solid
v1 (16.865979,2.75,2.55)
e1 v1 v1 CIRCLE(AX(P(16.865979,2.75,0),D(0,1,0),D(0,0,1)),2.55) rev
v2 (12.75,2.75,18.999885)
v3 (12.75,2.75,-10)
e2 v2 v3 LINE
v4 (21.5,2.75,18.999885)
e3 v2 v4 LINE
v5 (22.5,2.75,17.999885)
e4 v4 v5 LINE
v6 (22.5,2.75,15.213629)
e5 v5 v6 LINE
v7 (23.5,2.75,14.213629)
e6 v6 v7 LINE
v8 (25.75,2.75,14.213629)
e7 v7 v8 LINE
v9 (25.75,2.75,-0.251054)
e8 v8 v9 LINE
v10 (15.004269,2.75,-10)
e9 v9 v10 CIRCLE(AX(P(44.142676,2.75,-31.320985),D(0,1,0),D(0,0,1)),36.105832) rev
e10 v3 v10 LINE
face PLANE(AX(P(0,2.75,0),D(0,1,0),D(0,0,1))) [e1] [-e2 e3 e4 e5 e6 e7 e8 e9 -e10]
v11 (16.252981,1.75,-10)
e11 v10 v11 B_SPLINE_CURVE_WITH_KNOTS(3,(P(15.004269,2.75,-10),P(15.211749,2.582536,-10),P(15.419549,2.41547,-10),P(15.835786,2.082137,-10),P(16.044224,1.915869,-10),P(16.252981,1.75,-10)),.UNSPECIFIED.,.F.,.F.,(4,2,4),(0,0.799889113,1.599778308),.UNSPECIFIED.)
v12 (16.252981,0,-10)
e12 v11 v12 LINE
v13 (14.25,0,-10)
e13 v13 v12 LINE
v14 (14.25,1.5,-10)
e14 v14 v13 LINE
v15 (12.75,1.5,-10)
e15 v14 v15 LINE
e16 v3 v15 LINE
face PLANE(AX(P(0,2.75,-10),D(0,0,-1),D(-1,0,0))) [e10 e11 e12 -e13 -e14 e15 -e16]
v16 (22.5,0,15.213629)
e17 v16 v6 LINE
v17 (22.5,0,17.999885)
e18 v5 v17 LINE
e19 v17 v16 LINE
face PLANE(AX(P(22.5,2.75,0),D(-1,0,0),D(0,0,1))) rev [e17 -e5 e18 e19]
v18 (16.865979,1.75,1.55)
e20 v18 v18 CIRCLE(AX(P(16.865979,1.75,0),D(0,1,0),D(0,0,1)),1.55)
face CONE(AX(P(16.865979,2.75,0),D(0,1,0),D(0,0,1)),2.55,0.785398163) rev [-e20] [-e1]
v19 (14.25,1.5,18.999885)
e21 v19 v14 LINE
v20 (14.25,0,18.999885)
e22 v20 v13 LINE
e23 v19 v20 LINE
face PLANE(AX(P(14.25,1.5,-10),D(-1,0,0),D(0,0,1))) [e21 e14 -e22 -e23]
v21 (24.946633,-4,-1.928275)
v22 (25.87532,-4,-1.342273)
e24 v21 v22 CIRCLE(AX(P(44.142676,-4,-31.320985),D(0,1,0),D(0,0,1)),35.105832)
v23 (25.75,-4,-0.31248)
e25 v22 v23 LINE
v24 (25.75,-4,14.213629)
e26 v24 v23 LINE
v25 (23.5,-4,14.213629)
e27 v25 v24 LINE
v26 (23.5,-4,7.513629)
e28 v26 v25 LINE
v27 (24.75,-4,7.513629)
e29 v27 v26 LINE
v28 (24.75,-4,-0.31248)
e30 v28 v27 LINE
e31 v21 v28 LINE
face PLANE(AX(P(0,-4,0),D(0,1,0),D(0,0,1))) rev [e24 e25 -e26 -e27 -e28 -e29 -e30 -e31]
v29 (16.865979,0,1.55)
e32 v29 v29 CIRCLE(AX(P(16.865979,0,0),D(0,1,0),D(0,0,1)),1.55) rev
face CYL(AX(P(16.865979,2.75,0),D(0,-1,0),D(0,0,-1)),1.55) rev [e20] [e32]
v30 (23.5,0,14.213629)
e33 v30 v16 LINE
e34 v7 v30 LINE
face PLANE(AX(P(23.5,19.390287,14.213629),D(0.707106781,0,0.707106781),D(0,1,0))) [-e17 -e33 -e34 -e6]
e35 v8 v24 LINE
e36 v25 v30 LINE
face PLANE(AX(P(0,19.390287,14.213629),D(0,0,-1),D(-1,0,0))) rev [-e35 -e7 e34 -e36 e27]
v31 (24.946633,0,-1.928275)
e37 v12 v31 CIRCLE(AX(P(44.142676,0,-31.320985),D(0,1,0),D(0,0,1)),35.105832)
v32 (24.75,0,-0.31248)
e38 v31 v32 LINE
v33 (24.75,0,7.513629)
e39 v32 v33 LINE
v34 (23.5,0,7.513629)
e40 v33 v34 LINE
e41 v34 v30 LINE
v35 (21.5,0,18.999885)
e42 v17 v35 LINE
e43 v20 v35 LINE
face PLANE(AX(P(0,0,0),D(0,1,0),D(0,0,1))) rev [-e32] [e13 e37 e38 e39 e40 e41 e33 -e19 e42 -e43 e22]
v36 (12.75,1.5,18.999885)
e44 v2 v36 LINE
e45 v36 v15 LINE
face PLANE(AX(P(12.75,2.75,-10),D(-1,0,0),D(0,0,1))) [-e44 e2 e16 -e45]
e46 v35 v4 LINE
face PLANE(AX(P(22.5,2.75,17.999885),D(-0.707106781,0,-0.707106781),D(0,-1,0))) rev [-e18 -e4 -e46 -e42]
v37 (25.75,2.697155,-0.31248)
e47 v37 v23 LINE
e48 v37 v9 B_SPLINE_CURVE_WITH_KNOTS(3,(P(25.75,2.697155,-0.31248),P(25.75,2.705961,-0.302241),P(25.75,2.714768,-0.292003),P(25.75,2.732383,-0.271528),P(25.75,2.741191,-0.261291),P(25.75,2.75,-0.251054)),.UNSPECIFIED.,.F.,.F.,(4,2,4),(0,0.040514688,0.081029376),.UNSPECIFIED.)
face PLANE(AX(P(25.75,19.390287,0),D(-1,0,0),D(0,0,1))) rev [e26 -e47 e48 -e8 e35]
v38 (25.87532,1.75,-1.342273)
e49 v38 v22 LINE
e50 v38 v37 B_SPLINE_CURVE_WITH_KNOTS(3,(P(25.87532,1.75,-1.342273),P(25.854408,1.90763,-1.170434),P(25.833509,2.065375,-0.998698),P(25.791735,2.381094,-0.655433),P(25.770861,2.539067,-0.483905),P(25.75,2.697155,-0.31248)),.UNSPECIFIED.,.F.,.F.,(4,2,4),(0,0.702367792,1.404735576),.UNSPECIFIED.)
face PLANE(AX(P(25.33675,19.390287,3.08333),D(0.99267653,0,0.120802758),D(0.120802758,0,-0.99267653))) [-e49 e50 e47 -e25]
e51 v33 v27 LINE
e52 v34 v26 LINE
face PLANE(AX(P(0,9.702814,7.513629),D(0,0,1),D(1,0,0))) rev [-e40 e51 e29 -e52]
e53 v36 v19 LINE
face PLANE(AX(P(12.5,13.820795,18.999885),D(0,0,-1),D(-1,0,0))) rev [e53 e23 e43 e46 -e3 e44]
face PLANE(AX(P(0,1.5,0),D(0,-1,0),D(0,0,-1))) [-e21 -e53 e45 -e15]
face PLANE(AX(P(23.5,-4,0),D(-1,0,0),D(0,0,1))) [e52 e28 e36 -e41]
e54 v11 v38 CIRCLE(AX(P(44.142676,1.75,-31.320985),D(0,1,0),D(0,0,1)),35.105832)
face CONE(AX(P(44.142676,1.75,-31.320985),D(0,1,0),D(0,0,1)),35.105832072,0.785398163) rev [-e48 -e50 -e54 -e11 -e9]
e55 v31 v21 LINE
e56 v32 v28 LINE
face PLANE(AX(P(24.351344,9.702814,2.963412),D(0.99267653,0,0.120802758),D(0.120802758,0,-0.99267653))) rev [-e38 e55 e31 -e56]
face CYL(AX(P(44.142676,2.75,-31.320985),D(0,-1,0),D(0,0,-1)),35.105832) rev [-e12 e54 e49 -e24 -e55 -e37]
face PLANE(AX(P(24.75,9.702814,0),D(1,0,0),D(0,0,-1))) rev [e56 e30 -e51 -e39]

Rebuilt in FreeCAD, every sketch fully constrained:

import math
import FreeCAD as App
import Part
import Sketcher
from FreeCAD import Vector


def edges_at(feature, points):
    """Names of the edges that pass closest to the given points."""
    edges = feature.Shape.Edges
    near = lambda p: min(range(len(edges)), key=lambda i: edges[i].distToShape(Part.Vertex(*p))[0])
    return sorted({f"Edge{near(p) + 1}" for p in points})

doc = App.newDocument("Part")
body = doc.addObject("PartDesign::Body", "Body")

# Sketch on XZ plane
sketch1 = doc.addObject("Sketcher::SketchObject", "Sketch")
body.addObject(sketch1)
sketch1.AttachmentSupport = (doc.XZ_Plane, [""])
sketch1.MapMode = "FlatFace"
sketch1.addGeometry(Part.LineSegment(Vector(22.5, 14.249885, 0), Vector(22.5, 7.263629, 0)), False)
sketch1.addGeometry(Part.LineSegment(Vector(22.5, 7.263629, 0), Vector(24.5, 7.263629, 0)), False)
sketch1.addGeometry(Part.LineSegment(Vector(24.5, 7.263629, 0), Vector(24.5, -0.31248, 0)), False)
sketch1.addGeometry(Part.LineSegment(Vector(24.5, -0.31248, 0), Vector(24.715186, -2.080737, 0)), False)
sketch1.addGeometry(Part.ArcOfCircle(Part.Circle(Vector(44.142676, -31.320985, 0), Vector(0, 0, 1), 35.105832), math.radians(123.600428), math.radians(142.602978)), False)
sketch1.addGeometry(Part.LineSegment(Vector(16.252981, -10, 0), Vector(12.5, -10, 0)), False)
sketch1.addGeometry(Part.LineSegment(Vector(12.5, -10, 0), Vector(12.5, 14.249885, 0)), False)
sketch1.addGeometry(Part.LineSegment(Vector(12.5, 14.249885, 0), Vector(22.5, 14.249885, 0)), False)
sketch1.addGeometry(Part.Circle(Vector(16.865979, 0, 0), Vector(0, 0, 1), 1.55), False)
sketch1.addConstraint(Sketcher.Constraint("Coincident", 0, 2, 1, 1))
sketch1.addConstraint(Sketcher.Constraint("Coincident", 1, 2, 2, 1))
sketch1.addConstraint(Sketcher.Constraint("Coincident", 2, 2, 3, 1))
sketch1.addConstraint(Sketcher.Constraint("Coincident", 3, 2, 4, 1))
sketch1.addConstraint(Sketcher.Constraint("Coincident", 4, 2, 5, 1))
sketch1.addConstraint(Sketcher.Constraint("Coincident", 5, 2, 6, 1))
sketch1.addConstraint(Sketcher.Constraint("Coincident", 6, 2, 7, 1))
sketch1.addConstraint(Sketcher.Constraint("Coincident", 7, 2, 0, 1))
sketch1.addConstraint(Sketcher.Constraint("Vertical", 0))
sketch1.addConstraint(Sketcher.Constraint("Horizontal", 1))
sketch1.addConstraint(Sketcher.Constraint("Vertical", 2))
sketch1.addConstraint(Sketcher.Constraint("Horizontal", 5))
sketch1.addConstraint(Sketcher.Constraint("Vertical", 6))
sketch1.addConstraint(Sketcher.Constraint("Horizontal", 7))
sketch1.addConstraint(Sketcher.Constraint("PointOnObject", 8, 3, -1))
sketch1.addConstraint(Sketcher.Constraint("Diameter", 8, 3.1))
sketch1.addConstraint(Sketcher.Constraint("DistanceX", 1, 1, 1, 2, 2.0))
sketch1.addConstraint(Sketcher.Constraint("DistanceX", 7, 1, 7, 2, 10.0))
sketch1.addConstraint(Sketcher.Constraint("DistanceY", 4, 2, -1, 1, 10.0))
sketch1.addConstraint(Sketcher.Constraint("DistanceX", -1, 1, 0, 2, 22.5))
sketch1.addConstraint(Sketcher.Constraint("Radius", 4, 35.105832))
sketch1.addConstraint(Sketcher.Constraint("DistanceX", 4, 2, 8, 3, 0.612998))
sketch1.addConstraint(Sketcher.Constraint("Distance", 3, 1.781302))
sketch1.addConstraint(Sketcher.Constraint("DistanceX", 5, 2, 5, 1, 3.752981))
sketch1.addConstraint(Sketcher.Constraint("DistanceY", 2, 2, 2, 1, 7.576109))
sketch1.addConstraint(Sketcher.Constraint("DistanceY", 0, 2, 0, 1, 6.986256))
sketch1.addConstraint(Sketcher.Constraint("DistanceY", 6, 1, 6, 2, 24.249885))
sketch1.addConstraint(Sketcher.Constraint("DistanceX", 3, 2, 4, 3, 19.427489))
pad1 = doc.addObject("PartDesign::Pad", "Pad")
body.addObject(pad1)
pad1.Profile = sketch1
pad1.Length = 2.75
pad1.Reversed = True

# Sketch on XZ plane
sketch2 = doc.addObject("Sketcher::SketchObject", "Sketch001")
body.addObject(sketch2)
sketch2.AttachmentSupport = (doc.XZ_Plane, [""])
sketch2.MapMode = "FlatFace"
sketch2.addGeometry(Part.LineSegment(Vector(12.5, 14.249885, 0), Vector(12.5, 18.999885, 0)), False)
sketch2.addGeometry(Part.LineSegment(Vector(12.5, 18.999885, 0), Vector(22.5, 18.999885, 0)), False)
sketch2.addGeometry(Part.LineSegment(Vector(22.5, 18.999885, 0), Vector(22.5, 14.249885, 0)), False)
sketch2.addGeometry(Part.LineSegment(Vector(22.5, 14.249885, 0), Vector(12.5, 14.249885, 0)), False)
sketch2.addConstraint(Sketcher.Constraint("Coincident", 0, 2, 1, 1))
sketch2.addConstraint(Sketcher.Constraint("Coincident", 1, 2, 2, 1))
sketch2.addConstraint(Sketcher.Constraint("Coincident", 2, 2, 3, 1))
sketch2.addConstraint(Sketcher.Constraint("Coincident", 3, 2, 0, 1))
sketch2.addConstraint(Sketcher.Constraint("Vertical", 0))
sketch2.addConstraint(Sketcher.Constraint("Horizontal", 1))
sketch2.addConstraint(Sketcher.Constraint("Vertical", 2))
sketch2.addConstraint(Sketcher.Constraint("Horizontal", 3))
sketch2.addConstraint(Sketcher.Constraint("DistanceX", 1, 1, 1, 2, 10.0))
sketch2.addConstraint(Sketcher.Constraint("DistanceY", 0, 1, 0, 2, 4.75))
sketch2.addConstraint(Sketcher.Constraint("DistanceX", -1, 1, 0, 2, 12.5))
sketch2.addConstraint(Sketcher.Constraint("DistanceY", -1, 1, 0, 2, 18.999885))
pad2 = doc.addObject("PartDesign::Pad", "Pad001")
body.addObject(pad2)
pad2.Profile = sketch2
pad2.Length = 2.75
pad2.Reversed = True

# Sketch on XZ plane
sketch3 = doc.addObject("Sketcher::SketchObject", "Sketch002")
body.addObject(sketch3)
sketch3.AttachmentSupport = (doc.XZ_Plane, [""])
sketch3.MapMode = "FlatFace"
sketch3.addGeometry(Part.ArcOfCircle(Part.Circle(Vector(44.142676, -31.320986, 0), Vector(0, 0, 1), 35.105833), math.radians(121.355801), math.radians(123.600428)), False)
sketch3.addGeometry(Part.LineSegment(Vector(24.715186, -2.080737, 0), Vector(24.5, -0.31248, 0)), False)
sketch3.addGeometry(Part.LineSegment(Vector(24.5, -0.31248, 0), Vector(24.5, 7.263629, 0)), False)
sketch3.addGeometry(Part.LineSegment(Vector(24.5, 7.263629, 0), Vector(22.5, 7.263629, 0)), False)
sketch3.addGeometry(Part.LineSegment(Vector(22.5, 7.263629, 0), Vector(22.5, 14.213629, 0)), False)
sketch3.addGeometry(Part.LineSegment(Vector(22.5, 14.213629, 0), Vector(25.75, 14.213629, 0)), False)
sketch3.addGeometry(Part.LineSegment(Vector(25.75, 14.213629, 0), Vector(25.75, -0.31248, 0)), False)
sketch3.addGeometry(Part.LineSegment(Vector(25.75, -0.31248, 0), Vector(25.87532, -1.342273, 0)), False)
sketch3.addConstraint(Sketcher.Constraint("Coincident", 0, 2, 1, 1))
sketch3.addConstraint(Sketcher.Constraint("Coincident", 1, 2, 2, 1))
sketch3.addConstraint(Sketcher.Constraint("Coincident", 2, 2, 3, 1))
sketch3.addConstraint(Sketcher.Constraint("Coincident", 3, 2, 4, 1))
sketch3.addConstraint(Sketcher.Constraint("Coincident", 4, 2, 5, 1))
sketch3.addConstraint(Sketcher.Constraint("Coincident", 5, 2, 6, 1))
sketch3.addConstraint(Sketcher.Constraint("Coincident", 6, 2, 7, 1))
sketch3.addConstraint(Sketcher.Constraint("Coincident", 7, 2, 0, 1))
sketch3.addConstraint(Sketcher.Constraint("Vertical", 2))
sketch3.addConstraint(Sketcher.Constraint("Horizontal", 3))
sketch3.addConstraint(Sketcher.Constraint("Vertical", 4))
sketch3.addConstraint(Sketcher.Constraint("Horizontal", 5))
sketch3.addConstraint(Sketcher.Constraint("Vertical", 6))
sketch3.addConstraint(Sketcher.Constraint("Parallel", 1, 7))
sketch3.addConstraint(Sketcher.Constraint("Horizontal", 1, 2, 6, 2))
sketch3.addConstraint(Sketcher.Constraint("DistanceX", 3, 2, 3, 1, 2.0))
sketch3.addConstraint(Sketcher.Constraint("DistanceX", 5, 1, 5, 2, 3.25))
sketch3.addConstraint(Sketcher.Constraint("DistanceY", 4, 1, 4, 2, 6.95))
sketch3.addConstraint(Sketcher.Constraint("DistanceX", -1, 1, 1, 2, 24.5))
sketch3.addConstraint(Sketcher.Constraint("Radius", 0, 35.105833))
sketch3.addConstraint(Sketcher.Constraint("Distance", 1, 1.781302))
sketch3.addConstraint(Sketcher.Constraint("DistanceY", 2, 1, 2, 2, 7.576109))
sketch3.addConstraint(Sketcher.Constraint("Distance", 7, 1.03739))
sketch3.addConstraint(Sketcher.Constraint("DistanceY", 1, 2, -1, 1, 0.31248))
sketch3.addConstraint(Sketcher.Constraint("DistanceX", -1, 1, 7, 2, 25.87532))
pad3 = doc.addObject("PartDesign::Pad", "Pad002")
body.addObject(pad3)
pad3.Profile = sketch3
pad3.Length = 2.75
pad3.Reversed = True

# Sketch on XZ plane
sketch4 = doc.addObject("Sketcher::SketchObject", "Sketch003")
body.addObject(sketch4)
sketch4.AttachmentSupport = (doc.XZ_Plane, [""])
sketch4.MapMode = "FlatFace"
sketch4.AttachmentOffset = App.Placement(Vector(0, 0, 4), App.Rotation())
sketch4.addGeometry(Part.LineSegment(Vector(23.5, 7.263629, 0), Vector(23.5, 14.213629, 0)), False)
sketch4.addGeometry(Part.LineSegment(Vector(23.5, 14.213629, 0), Vector(25.75, 14.213629, 0)), False)
sketch4.addGeometry(Part.LineSegment(Vector(25.75, 14.213629, 0), Vector(25.75, -0.31248, 0)), False)
sketch4.addGeometry(Part.LineSegment(Vector(25.75, -0.31248, 0), Vector(25.87532, -1.342273, 0)), False)
sketch4.addGeometry(Part.ArcOfCircle(Part.Circle(Vector(44.142676, -31.320986, 0), Vector(0, 0, 1), 35.105833), math.radians(121.355801), math.radians(123.600428)), False)
sketch4.addGeometry(Part.LineSegment(Vector(24.715186, -2.080737, 0), Vector(24.5, -0.31248, 0)), False)
sketch4.addGeometry(Part.LineSegment(Vector(24.5, -0.31248, 0), Vector(24.5, 7.263629, 0)), False)
sketch4.addGeometry(Part.LineSegment(Vector(24.5, 7.263629, 0), Vector(23.5, 7.263629, 0)), False)
sketch4.addConstraint(Sketcher.Constraint("Coincident", 0, 2, 1, 1))
sketch4.addConstraint(Sketcher.Constraint("Coincident", 1, 2, 2, 1))
sketch4.addConstraint(Sketcher.Constraint("Coincident", 2, 2, 3, 1))
sketch4.addConstraint(Sketcher.Constraint("Coincident", 3, 2, 4, 1))
sketch4.addConstraint(Sketcher.Constraint("Coincident", 4, 2, 5, 1))
sketch4.addConstraint(Sketcher.Constraint("Coincident", 5, 2, 6, 1))
sketch4.addConstraint(Sketcher.Constraint("Coincident", 6, 2, 7, 1))
sketch4.addConstraint(Sketcher.Constraint("Coincident", 7, 2, 0, 1))
sketch4.addConstraint(Sketcher.Constraint("Vertical", 0))
sketch4.addConstraint(Sketcher.Constraint("Horizontal", 1))
sketch4.addConstraint(Sketcher.Constraint("Vertical", 2))
sketch4.addConstraint(Sketcher.Constraint("Vertical", 6))
sketch4.addConstraint(Sketcher.Constraint("Horizontal", 7))
sketch4.addConstraint(Sketcher.Constraint("Parallel", 3, 5))
sketch4.addConstraint(Sketcher.Constraint("Horizontal", 2, 2, 5, 2))
sketch4.addConstraint(Sketcher.Constraint("DistanceX", 7, 2, 7, 1, 1.0))
sketch4.addConstraint(Sketcher.Constraint("DistanceX", 1, 1, 1, 2, 2.25))
sketch4.addConstraint(Sketcher.Constraint("DistanceY", 0, 1, 0, 2, 6.95))
sketch4.addConstraint(Sketcher.Constraint("DistanceX", -1, 1, 0, 2, 23.5))
sketch4.addConstraint(Sketcher.Constraint("Radius", 4, 35.105833))
sketch4.addConstraint(Sketcher.Constraint("Distance", 5, 1.781302))
sketch4.addConstraint(Sketcher.Constraint("DistanceY", 2, 2, 2, 1, 14.526109))
sketch4.addConstraint(Sketcher.Constraint("Distance", 3, 1.03739))
sketch4.addConstraint(Sketcher.Constraint("DistanceY", -1, 1, 0, 2, 14.213629))
sketch4.addConstraint(Sketcher.Constraint("DistanceX", -1, 1, 3, 2, 25.87532))
pad4 = doc.addObject("PartDesign::Pad", "Pad003")
body.addObject(pad4)
pad4.Profile = sketch4
pad4.Length = 4
pad4.Reversed = True

# Sketch on XZ plane
sketch5 = doc.addObject("Sketcher::SketchObject", "Sketch004")
body.addObject(sketch5)
sketch5.AttachmentSupport = (doc.XZ_Plane, [""])
sketch5.MapMode = "FlatFace"
sketch5.addGeometry(Part.LineSegment(Vector(12.5, -10, 0), Vector(12.5, 18.999885, 0)), False)
sketch5.addGeometry(Part.LineSegment(Vector(12.5, 18.999885, 0), Vector(14.25, 18.999885, 0)), False)
sketch5.addGeometry(Part.LineSegment(Vector(14.25, 18.999885, 0), Vector(14.25, -10, 0)), False)
sketch5.addGeometry(Part.LineSegment(Vector(14.25, -10, 0), Vector(12.5, -10, 0)), False)
sketch5.addConstraint(Sketcher.Constraint("Coincident", 0, 2, 1, 1))
sketch5.addConstraint(Sketcher.Constraint("Coincident", 1, 2, 2, 1))
sketch5.addConstraint(Sketcher.Constraint("Coincident", 2, 2, 3, 1))
sketch5.addConstraint(Sketcher.Constraint("Coincident", 3, 2, 0, 1))
sketch5.addConstraint(Sketcher.Constraint("Vertical", 0))
sketch5.addConstraint(Sketcher.Constraint("Horizontal", 1))
sketch5.addConstraint(Sketcher.Constraint("Vertical", 2))
sketch5.addConstraint(Sketcher.Constraint("Horizontal", 3))
sketch5.addConstraint(Sketcher.Constraint("DistanceY", 2, 2, -1, 1, 10.0))
sketch5.addConstraint(Sketcher.Constraint("DistanceX", 1, 1, 1, 2, 1.75))
sketch5.addConstraint(Sketcher.Constraint("DistanceX", -1, 1, 0, 2, 12.5))
sketch5.addConstraint(Sketcher.Constraint("DistanceY", 0, 1, 0, 2, 28.999885))
pocket1 = doc.addObject("PartDesign::Pocket", "Pocket")
body.addObject(pocket1)
pocket1.Profile = sketch5
pocket1.Length = 1.5

# Sketch on XZ plane
sketch6 = doc.addObject("Sketcher::SketchObject", "Sketch005")
body.addObject(sketch6)
sketch6.AttachmentSupport = (doc.XZ_Plane, [""])
sketch6.MapMode = "FlatFace"
sketch6.addGeometry(Part.LineSegment(Vector(12.5, -10, 0), Vector(12.5, 18.999885, 0)), False)
sketch6.addGeometry(Part.LineSegment(Vector(12.5, 18.999885, 0), Vector(12.75, 18.999885, 0)), False)
sketch6.addGeometry(Part.LineSegment(Vector(12.75, 18.999885, 0), Vector(12.75, -10, 0)), False)
sketch6.addGeometry(Part.LineSegment(Vector(12.75, -10, 0), Vector(12.5, -10, 0)), False)
sketch6.addConstraint(Sketcher.Constraint("Coincident", 0, 2, 1, 1))
sketch6.addConstraint(Sketcher.Constraint("Coincident", 1, 2, 2, 1))
sketch6.addConstraint(Sketcher.Constraint("Coincident", 2, 2, 3, 1))
sketch6.addConstraint(Sketcher.Constraint("Coincident", 3, 2, 0, 1))
sketch6.addConstraint(Sketcher.Constraint("Vertical", 0))
sketch6.addConstraint(Sketcher.Constraint("Horizontal", 1))
sketch6.addConstraint(Sketcher.Constraint("Vertical", 2))
sketch6.addConstraint(Sketcher.Constraint("Horizontal", 3))
sketch6.addConstraint(Sketcher.Constraint("DistanceY", 2, 2, -1, 1, 10.0))
sketch6.addConstraint(Sketcher.Constraint("DistanceX", 1, 1, 1, 2, 0.25))
sketch6.addConstraint(Sketcher.Constraint("DistanceX", -1, 1, 0, 2, 12.5))
sketch6.addConstraint(Sketcher.Constraint("DistanceY", 0, 1, 0, 2, 28.999885))
pocket2 = doc.addObject("PartDesign::Pocket", "Pocket001")
body.addObject(pocket2)
pocket2.Profile = sketch6
pocket2.Type = "ThroughAll"
doc.recompute()

chamfer = doc.addObject("PartDesign::Chamfer", "Chamfer")
body.addObject(chamfer)
chamfer.Base = (pocket2, edges_at(pocket2, [(22.5, 1.375, 19), (20.155, 2.75, -5.689), (22.5, 1.375, 14.214)]))
chamfer.Size = 1
doc.recompute()

chamfer2 = doc.addObject("PartDesign::Chamfer", "Chamfer001")
body.addObject(chamfer2)
chamfer2.Base = (chamfer, edges_at(chamfer, [(16.866, 2.75, -1.55)]))
chamfer2.Size = 1

# Sketch on XZ plane
sketch7 = doc.addObject("Sketcher::SketchObject", "Sketch006")
body.addObject(sketch7)
sketch7.AttachmentSupport = (doc.XZ_Plane, [""])
sketch7.MapMode = "FlatFace"
sketch7.AttachmentOffset = App.Placement(Vector(0, 0, 4), App.Rotation())
sketch7.addGeometry(Part.LineSegment(Vector(24.5, -0.31248, 0), Vector(24.715186, -2.080737, 0)), False)
sketch7.addGeometry(Part.ArcOfCircle(Part.Circle(Vector(44.142718, -31.321049, 0), Vector(0, 0, 1), 35.105909), math.radians(123.148095), math.radians(123.600428)), False)
sketch7.addGeometry(Part.LineSegment(Vector(24.946633, -1.928275, 0), Vector(24.75, -0.31248, 0)), False)
sketch7.addGeometry(Part.LineSegment(Vector(24.75, -0.31248, 0), Vector(24.75, 7.513629, 0)), False)
sketch7.addGeometry(Part.LineSegment(Vector(24.75, 7.513629, 0), Vector(23.5, 7.513629, 0)), False)
sketch7.addGeometry(Part.LineSegment(Vector(23.5, 7.513629, 0), Vector(23.5, 7.263629, 0)), False)
sketch7.addGeometry(Part.LineSegment(Vector(23.5, 7.263629, 0), Vector(24.5, 7.263629, 0)), False)
sketch7.addGeometry(Part.LineSegment(Vector(24.5, 7.263629, 0), Vector(24.5, -0.31248, 0)), False)
sketch7.addConstraint(Sketcher.Constraint("Coincident", 0, 2, 1, 2))
sketch7.addConstraint(Sketcher.Constraint("Coincident", 1, 1, 2, 1))
sketch7.addConstraint(Sketcher.Constraint("Coincident", 2, 2, 3, 1))
sketch7.addConstraint(Sketcher.Constraint("Coincident", 3, 2, 4, 1))
sketch7.addConstraint(Sketcher.Constraint("Coincident", 4, 2, 5, 1))
sketch7.addConstraint(Sketcher.Constraint("Coincident", 5, 2, 6, 1))
sketch7.addConstraint(Sketcher.Constraint("Coincident", 6, 2, 7, 1))
sketch7.addConstraint(Sketcher.Constraint("Coincident", 7, 2, 0, 1))
sketch7.addConstraint(Sketcher.Constraint("Vertical", 3))
sketch7.addConstraint(Sketcher.Constraint("Horizontal", 4))
sketch7.addConstraint(Sketcher.Constraint("Vertical", 5))
sketch7.addConstraint(Sketcher.Constraint("Horizontal", 6))
sketch7.addConstraint(Sketcher.Constraint("Vertical", 7))
sketch7.addConstraint(Sketcher.Constraint("Parallel", 0, 2))
sketch7.addConstraint(Sketcher.Constraint("Horizontal", 2, 2, 7, 2))
sketch7.addConstraint(Sketcher.Constraint("DistanceX", 6, 1, 6, 2, 1.0))
sketch7.addConstraint(Sketcher.Constraint("DistanceX", 4, 2, 4, 1, 1.25))
sketch7.addConstraint(Sketcher.Constraint("DistanceY", 5, 2, 5, 1, 0.25))
sketch7.addConstraint(Sketcher.Constraint("DistanceX", -1, 1, 4, 2, 23.5))
sketch7.addConstraint(Sketcher.Constraint("Radius", 1, 35.105909))
sketch7.addConstraint(Sketcher.Constraint("Distance", 0, 1.781302))
sketch7.addConstraint(Sketcher.Constraint("DistanceY", 3, 1, 3, 2, 7.826109))
sketch7.addConstraint(Sketcher.Constraint("DistanceY", 1, 3, -1, 1, 31.321049))
sketch7.addConstraint(Sketcher.Constraint("DistanceY", 2, 2, -1, 1, 0.31248))
sketch7.addConstraint(Sketcher.Constraint("DistanceX", 0, 2, 1, 3, 19.427532))
pocket3 = doc.addObject("PartDesign::Pocket", "Pocket002")
body.addObject(pocket3)
pocket3.Profile = sketch7
pocket3.Length = 4

doc.recompute()
